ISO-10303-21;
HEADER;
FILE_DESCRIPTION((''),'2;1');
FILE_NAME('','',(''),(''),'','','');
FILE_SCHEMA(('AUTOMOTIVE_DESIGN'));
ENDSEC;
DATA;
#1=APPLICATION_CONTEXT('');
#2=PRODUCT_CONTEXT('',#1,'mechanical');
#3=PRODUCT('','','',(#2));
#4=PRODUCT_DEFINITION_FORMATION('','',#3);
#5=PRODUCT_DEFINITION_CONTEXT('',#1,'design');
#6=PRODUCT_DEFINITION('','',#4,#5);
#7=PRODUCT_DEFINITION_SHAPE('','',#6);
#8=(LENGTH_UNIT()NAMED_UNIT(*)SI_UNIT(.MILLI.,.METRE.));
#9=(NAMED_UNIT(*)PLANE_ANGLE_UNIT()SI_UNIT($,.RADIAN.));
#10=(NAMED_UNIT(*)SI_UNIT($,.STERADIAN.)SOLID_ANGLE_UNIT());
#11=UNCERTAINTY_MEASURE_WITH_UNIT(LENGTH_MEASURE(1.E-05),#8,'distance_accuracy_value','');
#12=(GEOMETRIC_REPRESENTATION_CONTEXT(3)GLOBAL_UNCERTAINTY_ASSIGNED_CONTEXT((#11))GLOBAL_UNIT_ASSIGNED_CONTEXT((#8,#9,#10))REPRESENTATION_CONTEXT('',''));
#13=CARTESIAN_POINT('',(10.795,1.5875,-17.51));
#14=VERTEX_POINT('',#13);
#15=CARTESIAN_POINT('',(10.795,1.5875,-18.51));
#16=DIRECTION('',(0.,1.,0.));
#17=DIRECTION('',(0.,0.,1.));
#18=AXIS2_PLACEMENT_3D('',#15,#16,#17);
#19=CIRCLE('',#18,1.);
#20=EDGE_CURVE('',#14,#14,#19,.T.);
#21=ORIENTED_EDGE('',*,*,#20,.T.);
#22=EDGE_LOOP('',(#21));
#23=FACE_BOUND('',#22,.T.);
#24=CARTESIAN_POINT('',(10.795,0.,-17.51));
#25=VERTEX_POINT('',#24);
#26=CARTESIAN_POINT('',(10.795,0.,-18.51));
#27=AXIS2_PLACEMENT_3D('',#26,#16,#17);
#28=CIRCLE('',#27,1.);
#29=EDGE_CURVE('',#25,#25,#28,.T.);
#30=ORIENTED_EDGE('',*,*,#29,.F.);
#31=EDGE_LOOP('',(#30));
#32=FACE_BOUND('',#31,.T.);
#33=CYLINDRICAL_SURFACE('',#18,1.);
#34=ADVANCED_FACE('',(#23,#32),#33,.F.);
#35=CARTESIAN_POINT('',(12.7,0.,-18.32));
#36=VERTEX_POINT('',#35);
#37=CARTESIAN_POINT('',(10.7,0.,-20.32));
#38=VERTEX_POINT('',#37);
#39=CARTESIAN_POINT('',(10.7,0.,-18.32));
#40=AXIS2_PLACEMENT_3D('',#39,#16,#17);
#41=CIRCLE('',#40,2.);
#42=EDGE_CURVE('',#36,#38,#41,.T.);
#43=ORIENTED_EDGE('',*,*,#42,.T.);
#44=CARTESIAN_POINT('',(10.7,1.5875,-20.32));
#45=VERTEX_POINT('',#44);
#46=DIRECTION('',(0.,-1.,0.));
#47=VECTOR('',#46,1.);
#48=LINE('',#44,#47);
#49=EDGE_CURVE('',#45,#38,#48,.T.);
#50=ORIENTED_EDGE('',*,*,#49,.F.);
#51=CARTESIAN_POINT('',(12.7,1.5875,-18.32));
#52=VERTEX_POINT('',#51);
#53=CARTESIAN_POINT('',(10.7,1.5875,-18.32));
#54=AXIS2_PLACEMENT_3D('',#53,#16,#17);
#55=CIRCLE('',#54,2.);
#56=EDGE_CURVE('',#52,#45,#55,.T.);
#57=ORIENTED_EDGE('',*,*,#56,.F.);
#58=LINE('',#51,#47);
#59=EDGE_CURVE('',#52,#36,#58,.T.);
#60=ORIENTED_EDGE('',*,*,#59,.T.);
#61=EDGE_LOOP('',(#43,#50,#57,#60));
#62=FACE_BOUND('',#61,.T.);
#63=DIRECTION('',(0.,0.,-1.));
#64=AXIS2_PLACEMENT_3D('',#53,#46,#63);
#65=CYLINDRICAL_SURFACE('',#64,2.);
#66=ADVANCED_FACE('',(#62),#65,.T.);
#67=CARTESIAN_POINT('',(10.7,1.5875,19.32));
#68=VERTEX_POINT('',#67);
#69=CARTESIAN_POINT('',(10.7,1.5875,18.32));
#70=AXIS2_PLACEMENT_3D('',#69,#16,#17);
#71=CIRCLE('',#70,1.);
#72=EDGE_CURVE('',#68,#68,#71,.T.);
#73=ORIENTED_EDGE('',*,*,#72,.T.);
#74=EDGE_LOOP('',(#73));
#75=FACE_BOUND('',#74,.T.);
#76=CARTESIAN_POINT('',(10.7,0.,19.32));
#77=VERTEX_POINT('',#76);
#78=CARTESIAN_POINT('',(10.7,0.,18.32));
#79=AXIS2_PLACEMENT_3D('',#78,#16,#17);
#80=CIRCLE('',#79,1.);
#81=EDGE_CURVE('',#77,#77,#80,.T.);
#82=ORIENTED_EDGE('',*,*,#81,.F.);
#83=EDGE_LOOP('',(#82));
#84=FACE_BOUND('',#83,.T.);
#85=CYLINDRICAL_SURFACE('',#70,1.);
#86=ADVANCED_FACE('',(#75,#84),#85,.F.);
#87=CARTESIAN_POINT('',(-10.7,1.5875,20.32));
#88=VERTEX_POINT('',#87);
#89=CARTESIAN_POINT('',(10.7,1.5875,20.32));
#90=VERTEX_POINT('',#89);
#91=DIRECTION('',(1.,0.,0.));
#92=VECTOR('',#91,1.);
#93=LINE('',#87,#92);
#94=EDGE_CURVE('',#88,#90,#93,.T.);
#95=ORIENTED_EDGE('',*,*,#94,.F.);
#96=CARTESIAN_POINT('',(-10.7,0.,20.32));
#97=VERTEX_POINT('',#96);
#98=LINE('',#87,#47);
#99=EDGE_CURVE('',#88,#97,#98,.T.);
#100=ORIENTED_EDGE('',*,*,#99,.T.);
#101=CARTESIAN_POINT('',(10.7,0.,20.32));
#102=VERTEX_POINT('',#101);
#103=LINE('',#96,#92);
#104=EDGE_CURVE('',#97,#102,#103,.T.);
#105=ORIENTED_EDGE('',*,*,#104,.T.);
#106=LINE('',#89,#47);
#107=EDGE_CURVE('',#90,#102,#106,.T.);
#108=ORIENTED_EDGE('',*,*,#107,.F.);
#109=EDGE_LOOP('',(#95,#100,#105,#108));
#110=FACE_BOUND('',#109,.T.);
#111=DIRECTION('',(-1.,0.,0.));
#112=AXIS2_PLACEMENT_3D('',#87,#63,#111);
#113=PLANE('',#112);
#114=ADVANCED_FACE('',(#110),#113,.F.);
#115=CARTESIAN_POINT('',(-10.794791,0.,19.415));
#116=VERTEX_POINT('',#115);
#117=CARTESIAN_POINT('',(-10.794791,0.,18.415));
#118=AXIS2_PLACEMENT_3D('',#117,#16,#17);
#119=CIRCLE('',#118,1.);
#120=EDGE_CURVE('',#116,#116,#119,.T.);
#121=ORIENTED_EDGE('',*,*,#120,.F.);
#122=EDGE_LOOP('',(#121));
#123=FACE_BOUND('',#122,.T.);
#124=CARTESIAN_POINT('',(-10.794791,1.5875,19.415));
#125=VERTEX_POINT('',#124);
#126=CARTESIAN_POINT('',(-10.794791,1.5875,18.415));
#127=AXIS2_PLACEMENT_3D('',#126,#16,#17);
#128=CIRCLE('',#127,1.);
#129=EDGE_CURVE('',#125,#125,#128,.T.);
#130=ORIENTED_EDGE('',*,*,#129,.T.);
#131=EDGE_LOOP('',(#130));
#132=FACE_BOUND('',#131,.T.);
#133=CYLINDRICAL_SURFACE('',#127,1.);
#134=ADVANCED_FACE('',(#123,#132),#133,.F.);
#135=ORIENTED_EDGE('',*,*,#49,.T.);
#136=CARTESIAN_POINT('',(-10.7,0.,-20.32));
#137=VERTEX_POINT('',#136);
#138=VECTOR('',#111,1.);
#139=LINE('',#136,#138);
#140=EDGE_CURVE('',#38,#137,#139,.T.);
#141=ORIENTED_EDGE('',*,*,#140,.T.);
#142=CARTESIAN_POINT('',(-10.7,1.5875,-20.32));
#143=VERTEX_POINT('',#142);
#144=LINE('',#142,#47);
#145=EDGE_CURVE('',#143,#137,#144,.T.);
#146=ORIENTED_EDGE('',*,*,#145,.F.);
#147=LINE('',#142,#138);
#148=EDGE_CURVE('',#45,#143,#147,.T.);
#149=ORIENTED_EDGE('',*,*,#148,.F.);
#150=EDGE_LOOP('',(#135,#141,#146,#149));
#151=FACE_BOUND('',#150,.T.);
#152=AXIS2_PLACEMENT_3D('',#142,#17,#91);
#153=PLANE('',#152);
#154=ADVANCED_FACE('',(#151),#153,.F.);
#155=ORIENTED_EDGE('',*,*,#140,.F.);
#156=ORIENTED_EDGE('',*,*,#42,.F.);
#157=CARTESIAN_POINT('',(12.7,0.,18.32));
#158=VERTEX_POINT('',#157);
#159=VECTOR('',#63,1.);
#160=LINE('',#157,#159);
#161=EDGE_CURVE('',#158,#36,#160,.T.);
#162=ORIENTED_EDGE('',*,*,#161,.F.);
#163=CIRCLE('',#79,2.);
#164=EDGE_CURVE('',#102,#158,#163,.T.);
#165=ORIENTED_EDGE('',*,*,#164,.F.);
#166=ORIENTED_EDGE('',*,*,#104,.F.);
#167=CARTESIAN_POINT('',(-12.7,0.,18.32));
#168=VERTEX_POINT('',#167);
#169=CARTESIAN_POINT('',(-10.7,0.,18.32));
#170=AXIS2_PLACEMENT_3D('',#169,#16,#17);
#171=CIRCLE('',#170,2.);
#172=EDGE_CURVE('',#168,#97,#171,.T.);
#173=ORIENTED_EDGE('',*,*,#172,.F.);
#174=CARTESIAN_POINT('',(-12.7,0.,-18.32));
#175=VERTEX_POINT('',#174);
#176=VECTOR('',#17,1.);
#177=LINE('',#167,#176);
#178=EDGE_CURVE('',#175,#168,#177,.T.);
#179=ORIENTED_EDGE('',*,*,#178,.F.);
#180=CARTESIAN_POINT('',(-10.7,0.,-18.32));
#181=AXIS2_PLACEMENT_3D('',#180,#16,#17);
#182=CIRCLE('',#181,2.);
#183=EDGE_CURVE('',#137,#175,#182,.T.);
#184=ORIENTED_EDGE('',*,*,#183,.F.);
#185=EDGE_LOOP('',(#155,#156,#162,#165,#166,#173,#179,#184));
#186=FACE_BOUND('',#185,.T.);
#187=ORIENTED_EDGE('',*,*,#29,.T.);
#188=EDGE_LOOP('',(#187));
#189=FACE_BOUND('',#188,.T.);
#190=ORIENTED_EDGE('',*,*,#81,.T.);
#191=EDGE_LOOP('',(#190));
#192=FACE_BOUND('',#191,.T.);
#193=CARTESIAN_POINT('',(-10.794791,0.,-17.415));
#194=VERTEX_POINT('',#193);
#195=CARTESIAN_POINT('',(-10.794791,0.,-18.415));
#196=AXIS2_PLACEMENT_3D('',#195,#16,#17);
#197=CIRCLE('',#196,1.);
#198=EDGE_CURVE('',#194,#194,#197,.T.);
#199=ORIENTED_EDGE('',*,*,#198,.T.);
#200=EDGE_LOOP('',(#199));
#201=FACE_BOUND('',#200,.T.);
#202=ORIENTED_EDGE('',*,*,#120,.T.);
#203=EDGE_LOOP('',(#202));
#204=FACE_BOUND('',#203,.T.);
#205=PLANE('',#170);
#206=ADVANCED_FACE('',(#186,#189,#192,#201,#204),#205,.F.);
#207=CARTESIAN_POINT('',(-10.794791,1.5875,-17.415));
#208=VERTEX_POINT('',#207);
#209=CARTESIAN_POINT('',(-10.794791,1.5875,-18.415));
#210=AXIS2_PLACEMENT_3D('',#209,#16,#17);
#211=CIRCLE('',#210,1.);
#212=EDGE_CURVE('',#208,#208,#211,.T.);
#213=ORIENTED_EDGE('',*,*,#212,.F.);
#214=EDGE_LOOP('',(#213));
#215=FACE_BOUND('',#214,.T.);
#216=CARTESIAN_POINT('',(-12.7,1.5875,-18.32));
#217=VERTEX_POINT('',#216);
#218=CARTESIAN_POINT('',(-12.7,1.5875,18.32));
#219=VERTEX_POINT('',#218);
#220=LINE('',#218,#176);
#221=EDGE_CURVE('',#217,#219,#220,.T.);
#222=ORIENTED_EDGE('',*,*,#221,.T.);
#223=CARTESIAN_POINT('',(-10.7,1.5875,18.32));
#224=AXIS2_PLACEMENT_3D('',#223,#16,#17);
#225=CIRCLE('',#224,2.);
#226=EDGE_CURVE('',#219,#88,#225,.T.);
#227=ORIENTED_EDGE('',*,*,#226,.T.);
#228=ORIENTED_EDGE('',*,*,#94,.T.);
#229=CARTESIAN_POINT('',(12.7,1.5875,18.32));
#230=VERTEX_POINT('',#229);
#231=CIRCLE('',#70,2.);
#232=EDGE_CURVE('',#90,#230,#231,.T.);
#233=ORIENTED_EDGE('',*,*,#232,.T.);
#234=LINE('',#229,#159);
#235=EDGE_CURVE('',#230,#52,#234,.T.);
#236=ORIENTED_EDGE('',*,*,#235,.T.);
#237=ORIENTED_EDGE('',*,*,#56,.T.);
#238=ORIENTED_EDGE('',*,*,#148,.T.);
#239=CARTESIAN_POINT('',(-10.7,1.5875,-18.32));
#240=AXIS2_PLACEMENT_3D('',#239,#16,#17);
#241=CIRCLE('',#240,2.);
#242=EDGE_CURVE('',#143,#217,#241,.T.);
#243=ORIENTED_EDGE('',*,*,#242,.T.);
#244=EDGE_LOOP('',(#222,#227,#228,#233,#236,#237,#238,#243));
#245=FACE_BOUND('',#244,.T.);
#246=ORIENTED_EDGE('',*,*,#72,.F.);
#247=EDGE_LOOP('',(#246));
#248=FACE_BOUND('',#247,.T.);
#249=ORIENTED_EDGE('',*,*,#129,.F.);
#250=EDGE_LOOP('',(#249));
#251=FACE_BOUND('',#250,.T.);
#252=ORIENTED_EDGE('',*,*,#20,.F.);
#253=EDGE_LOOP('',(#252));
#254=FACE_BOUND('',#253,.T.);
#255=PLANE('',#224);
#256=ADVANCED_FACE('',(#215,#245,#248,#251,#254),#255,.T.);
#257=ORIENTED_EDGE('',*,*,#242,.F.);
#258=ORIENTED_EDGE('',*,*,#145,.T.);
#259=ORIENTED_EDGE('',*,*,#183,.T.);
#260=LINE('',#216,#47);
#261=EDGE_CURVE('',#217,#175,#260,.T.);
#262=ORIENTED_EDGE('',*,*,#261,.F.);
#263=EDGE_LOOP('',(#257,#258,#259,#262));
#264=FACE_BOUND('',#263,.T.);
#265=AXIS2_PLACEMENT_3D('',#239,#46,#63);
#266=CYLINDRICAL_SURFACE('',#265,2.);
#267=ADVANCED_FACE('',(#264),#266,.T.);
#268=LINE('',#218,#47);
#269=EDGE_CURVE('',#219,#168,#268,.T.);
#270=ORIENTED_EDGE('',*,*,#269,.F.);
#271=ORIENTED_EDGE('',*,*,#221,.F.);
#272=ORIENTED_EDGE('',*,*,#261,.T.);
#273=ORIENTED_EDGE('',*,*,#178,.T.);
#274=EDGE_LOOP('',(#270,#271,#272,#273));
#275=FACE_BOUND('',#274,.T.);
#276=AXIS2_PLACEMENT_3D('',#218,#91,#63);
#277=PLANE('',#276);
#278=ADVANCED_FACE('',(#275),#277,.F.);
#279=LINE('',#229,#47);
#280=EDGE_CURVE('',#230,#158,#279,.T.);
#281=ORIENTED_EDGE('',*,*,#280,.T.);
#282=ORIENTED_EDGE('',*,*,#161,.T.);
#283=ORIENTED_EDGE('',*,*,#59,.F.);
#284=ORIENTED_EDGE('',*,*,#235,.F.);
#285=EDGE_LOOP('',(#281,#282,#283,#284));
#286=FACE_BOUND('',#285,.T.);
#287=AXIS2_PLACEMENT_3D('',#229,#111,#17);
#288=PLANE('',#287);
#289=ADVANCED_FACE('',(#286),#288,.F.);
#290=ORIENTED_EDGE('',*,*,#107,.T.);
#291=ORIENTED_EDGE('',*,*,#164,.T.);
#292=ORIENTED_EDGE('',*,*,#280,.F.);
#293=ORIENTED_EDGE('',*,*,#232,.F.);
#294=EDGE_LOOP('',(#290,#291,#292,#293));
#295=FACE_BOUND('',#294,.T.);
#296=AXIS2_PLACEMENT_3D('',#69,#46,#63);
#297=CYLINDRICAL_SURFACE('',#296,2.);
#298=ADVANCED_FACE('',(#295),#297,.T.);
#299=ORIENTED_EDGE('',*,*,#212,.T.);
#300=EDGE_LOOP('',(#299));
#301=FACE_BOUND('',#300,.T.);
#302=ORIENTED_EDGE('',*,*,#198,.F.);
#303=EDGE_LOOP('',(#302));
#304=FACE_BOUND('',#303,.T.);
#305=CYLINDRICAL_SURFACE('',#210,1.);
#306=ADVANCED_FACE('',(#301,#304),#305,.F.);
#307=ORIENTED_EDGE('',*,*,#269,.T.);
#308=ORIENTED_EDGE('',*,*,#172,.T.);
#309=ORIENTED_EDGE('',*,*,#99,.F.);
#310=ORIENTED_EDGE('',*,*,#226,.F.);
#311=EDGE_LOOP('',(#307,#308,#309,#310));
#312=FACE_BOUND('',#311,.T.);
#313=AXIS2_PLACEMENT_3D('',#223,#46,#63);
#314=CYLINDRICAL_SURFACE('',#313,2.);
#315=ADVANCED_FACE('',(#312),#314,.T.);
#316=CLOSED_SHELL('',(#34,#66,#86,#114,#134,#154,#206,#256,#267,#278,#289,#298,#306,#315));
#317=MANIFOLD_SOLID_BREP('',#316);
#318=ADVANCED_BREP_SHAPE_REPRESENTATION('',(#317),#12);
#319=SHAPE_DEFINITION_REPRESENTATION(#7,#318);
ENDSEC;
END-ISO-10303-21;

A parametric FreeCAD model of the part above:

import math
import FreeCAD as App
import Part
import Sketcher
Q = App.Units.Quantity

doc = App.newDocument("Part")
body = doc.addObject("PartDesign::Body", "Body")

# Sketch on XZ plane
sketch1 = body.newObject("Sketcher::SketchObject", "Sketch")
sketch1.AttachmentSupport = (doc.getObject("XZ_Plane"), [""])
sketch1.MapMode = "FlatFace"
sketch1.addGeometry(Part.LineSegment(App.Vector(-10.7, 20.3, 0), App.Vector(10.7, 20.3, 0)), False)
sketch1.addGeometry(Part.ArcOfCircle(Part.Circle(App.Vector(10.7, 18.3, 0), App.Vector(0, 0, 1), 2), math.radians(0), math.radians(90)), False)
sketch1.addGeometry(Part.LineSegment(App.Vector(12.7, 18.3, 0), App.Vector(12.7, -18.3, 0)), False)
sketch1.addGeometry(Part.ArcOfCircle(Part.Circle(App.Vector(10.7, -18.3, 0), App.Vector(0, 0, 1), 2), math.radians(-90), math.radians(0)), False)
sketch1.addGeometry(Part.LineSegment(App.Vector(10.7, -20.3, 0), App.Vector(-10.7, -20.3, 0)), False)
sketch1.addGeometry(Part.ArcOfCircle(Part.Circle(App.Vector(-10.7, -18.3, 0), App.Vector(0, 0, 1), 2), math.radians(-180), math.radians(-90)), False)
sketch1.addGeometry(Part.LineSegment(App.Vector(-12.7, -18.3, 0), App.Vector(-12.7, 18.3, 0)), False)
sketch1.addGeometry(Part.ArcOfCircle(Part.Circle(App.Vector(-10.7, 18.3, 0), App.Vector(0, 0, 1), 2), math.radians(90), math.radians(180)), False)
sketch1.addConstraint(Sketcher.Constraint("Tangent", 0, 2, 1, 2))
sketch1.addConstraint(Sketcher.Constraint("Tangent", 1, 1, 2, 1))
sketch1.addConstraint(Sketcher.Constraint("Tangent", 2, 2, 3, 2))
sketch1.addConstraint(Sketcher.Constraint("Tangent", 3, 1, 4, 1))
sketch1.addConstraint(Sketcher.Constraint("Tangent", 4, 2, 5, 2))
sketch1.addConstraint(Sketcher.Constraint("Tangent", 5, 1, 6, 1))
sketch1.addConstraint(Sketcher.Constraint("Tangent", 6, 2, 7, 2))
sketch1.addConstraint(Sketcher.Constraint("Tangent", 7, 1, 0, 1))
sketch1.addConstraint(Sketcher.Constraint("Horizontal", 0))
sketch1.addConstraint(Sketcher.Constraint("Vertical", 2))
sketch1.addConstraint(Sketcher.Constraint("Horizontal", 4))
sketch1.addConstraint(Sketcher.Constraint("Vertical", 6))
sketch1.addConstraint(Sketcher.Constraint("Equal", 1, 3))
sketch1.addConstraint(Sketcher.Constraint("Equal", 3, 5))
sketch1.addConstraint(Sketcher.Constraint("Equal", 5, 7))
sketch1.addConstraint(Sketcher.Constraint("Symmetric", 1, 3, 5, 3, -1, 1))
sketch1.addConstraint(Sketcher.Constraint("Radius", 1, Q("2 mm")))
sketch1.addConstraint(Sketcher.Constraint("DistanceX", 0, 1, 0, 2, Q("21.4 mm")))
sketch1.addConstraint(Sketcher.Constraint("DistanceY", 2, 2, 2, 1, Q("36.64 mm")))
pad1 = body.newObject("PartDesign::Pad", "Pad")
pad1.Profile = sketch1
pad1.Length = 1.5875
pad1.Reversed = True

# Sketch on XZ plane
sketch2 = body.newObject("Sketcher::SketchObject", "Sketch001")
sketch2.AttachmentSupport = (doc.getObject("XZ_Plane"), [""])
sketch2.MapMode = "FlatFace"
sketch2.AttachmentOffset = App.Placement(App.Vector(0, 0, -1.5875), App.Rotation())
sketch2.addGeometry(Part.Circle(App.Vector(-10.8, -18.4, 0), App.Vector(0, 0, 1), 1), False)
sketch2.addGeometry(Part.Circle(App.Vector(10.8, -18.5, 0), App.Vector(0, 0, 1), 1), False)
sketch2.addGeometry(Part.Circle(App.Vector(10.7, 18.3, 0), App.Vector(0, 0, 1), 1), False)
sketch2.addGeometry(Part.Circle(App.Vector(-10.8, 18.4, 0), App.Vector(0, 0, 1), 1), False)
sketch2.addConstraint(Sketcher.Constraint("Equal", 0, 1))
sketch2.addConstraint(Sketcher.Constraint("Equal", 1, 2))
sketch2.addConstraint(Sketcher.Constraint("Equal", 2, 3))
sketch2.addConstraint(Sketcher.Constraint("Symmetric", 0, 3, 3, 3, -1))
sketch2.addConstraint(Sketcher.Constraint("Diameter", 0, Q("2 mm")))
sketch2.addConstraint(Sketcher.Constraint("DistanceX", -1, 1, 2, 3, Q("10.7 mm")))
sketch2.addConstraint(Sketcher.Constraint("DistanceY", 1, 3, -1, 1, Q("18.51 mm")))
sketch2.addConstraint(Sketcher.Constraint("DistanceY", -1, 1, 2, 3, Q("18.32 mm")))
sketch2.addConstraint(Sketcher.Constraint("DistanceY", 0, 3, 3, 3, Q("36.83 mm")))
sketch2.addConstraint(Sketcher.Constraint("DistanceX", -1, 1, 1, 3, Q("10.795 mm")))
sketch2.addConstraint(Sketcher.Constraint("DistanceX", 0, 3, -1, 1, Q("10.794791 mm")))
doc.recompute()
hole = body.newObject("PartDesign::Hole", "Hole")
hole.Profile = sketch2
hole.ThreadType = "None"
hole.Diameter = 2
hole.DepthType = "Dimension"
hole.Depth = 38.1
hole.DrillPoint = "Angled"
hole.DrillPointAngle = 118
hole.Reversed = True

doc.recompute()
